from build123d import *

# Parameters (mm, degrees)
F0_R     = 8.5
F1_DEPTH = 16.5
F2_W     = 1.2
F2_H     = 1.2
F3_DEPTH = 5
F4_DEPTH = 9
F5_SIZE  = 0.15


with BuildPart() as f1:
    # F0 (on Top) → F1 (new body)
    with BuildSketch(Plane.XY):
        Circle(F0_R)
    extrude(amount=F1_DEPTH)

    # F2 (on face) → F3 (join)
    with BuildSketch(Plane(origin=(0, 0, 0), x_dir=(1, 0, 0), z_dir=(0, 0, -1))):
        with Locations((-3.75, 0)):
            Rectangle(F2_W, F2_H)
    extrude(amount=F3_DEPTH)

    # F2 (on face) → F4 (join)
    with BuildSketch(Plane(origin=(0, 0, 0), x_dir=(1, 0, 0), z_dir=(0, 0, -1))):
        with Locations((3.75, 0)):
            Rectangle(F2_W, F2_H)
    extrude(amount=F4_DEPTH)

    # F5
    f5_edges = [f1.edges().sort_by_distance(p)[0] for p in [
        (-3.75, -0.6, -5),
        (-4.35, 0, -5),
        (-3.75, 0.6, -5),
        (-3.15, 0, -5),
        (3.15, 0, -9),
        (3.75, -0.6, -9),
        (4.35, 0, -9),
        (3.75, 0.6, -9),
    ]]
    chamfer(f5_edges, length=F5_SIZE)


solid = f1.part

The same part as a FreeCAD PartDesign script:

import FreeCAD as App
import Part
import Sketcher

V = App.Vector
Q = App.Units.Quantity


def edges_at(feature, points):
    """Names of the edges that pass closest to the given points."""
    edges = feature.Shape.Edges
    near = lambda p: min(range(len(edges)), key=lambda i: edges[i].distToShape(Part.Vertex(*p))[0])
    return sorted({f"Edge{near(p) + 1}" for p in points})


def add_polygon(sketch, points):
    """Adds a closed chain of lines whose ends are joined by coincident constraints."""
    first, n = sketch.GeometryCount, len(points)
    for a, b in zip(points, points[1:] + points[:1]):
        sketch.addGeometry(Part.LineSegment(App.Vector(*a, 0), App.Vector(*b, 0)), False)
    for i in range(n):
        sketch.addConstraint(Sketcher.Constraint("Coincident", first + i, 2, first + (i + 1) % n, 1))

doc = App.newDocument("Part")
body = doc.addObject("PartDesign::Body", "Body")

sketch1 = doc.addObject("Sketcher::SketchObject", "Sketch")
body.addObject(sketch1)
sketch1.AttachmentSupport = (doc.XY_Plane, [""])
sketch1.MapMode = "FlatFace"
sketch1.addGeometry(Part.Circle(V(0, 0, 0), V(0, 0, 1), 8.5), False)
sketch1.addConstraint([
    Sketcher.Constraint("Coincident", 0, 3, -1, 1),
    Sketcher.Constraint("Diameter", 0, Q("17 mm")),
])
pad1 = doc.addObject("PartDesign::Pad", "Pad")
body.addObject(pad1)
pad1.Profile = sketch1
pad1.Length = 16.5

sketch2 = doc.addObject("Sketcher::SketchObject", "Sketch001")
body.addObject(sketch2)
sketch2.AttachmentSupport = (doc.XY_Plane, [""])
sketch2.MapMode = "FlatFace"
add_polygon(sketch2, [(-4.35, -0.6), (-4.35, 0.6), (-3.15, 0.6), (-3.15, -0.6)])
sketch2.addConstraint([
    Sketcher.Constraint("Vertical", 0),
    Sketcher.Constraint("Horizontal", 1),
    Sketcher.Constraint("Vertical", 2),
    Sketcher.Constraint("Horizontal", 3),
    Sketcher.Constraint("Equal", 3, 0),
    Sketcher.Constraint("DistanceX", 1, 1, 1, 2, Q("1.2 mm")),
    Sketcher.Constraint("DistanceY", -1, 1, 0, 2, Q("0.6 mm")),
    Sketcher.Constraint("DistanceX", 0, 2, -1, 1, Q("4.35 mm")),
])
pad2 = doc.addObject("PartDesign::Pad", "Pad001")
body.addObject(pad2)
pad2.Profile = sketch2
pad2.Length = 5
pad2.Reversed = True

sketch3 = doc.addObject("Sketcher::SketchObject", "Sketch002")
body.addObject(sketch3)
sketch3.AttachmentSupport = (doc.XY_Plane, [""])
sketch3.MapMode = "FlatFace"
add_polygon(sketch3, [(3.15, -0.6), (3.15, 0.6), (4.35, 0.6), (4.35, -0.6)])
sketch3.addConstraint([
    Sketcher.Constraint("Vertical", 0),
    Sketcher.Constraint("Horizontal", 1),
    Sketcher.Constraint("Vertical", 2),
    Sketcher.Constraint("Horizontal", 3),
    Sketcher.Constraint("Equal", 3, 0),
    Sketcher.Constraint("DistanceX", 1, 1, 1, 2, Q("1.2 mm")),
    Sketcher.Constraint("DistanceY", -1, 1, 0, 2, Q("0.6 mm")),
    Sketcher.Constraint("DistanceX", -1, 1, 0, 2, Q("3.15 mm")),
])
pad3 = doc.addObject("PartDesign::Pad", "Pad002")
body.addObject(pad3)
pad3.Profile = sketch3
pad3.Length = 9
pad3.Reversed = True
doc.recompute()

chamfer = doc.addObject("PartDesign::Chamfer", "Chamfer")
body.addObject(chamfer)
chamfer.Base = (pad3, edges_at(pad3, [
    (-3.75, -0.6, -5),
    (-4.35, 0, -5),
    (-3.75, 0.6, -5),
    (-3.15, 0, -5),
    (3.15, 0, -9),
    (3.75, -0.6, -9),
    (4.35, 0, -9),
    (3.75, 0.6, -9),
]))
chamfer.Size = 0.15

doc.recompute()
